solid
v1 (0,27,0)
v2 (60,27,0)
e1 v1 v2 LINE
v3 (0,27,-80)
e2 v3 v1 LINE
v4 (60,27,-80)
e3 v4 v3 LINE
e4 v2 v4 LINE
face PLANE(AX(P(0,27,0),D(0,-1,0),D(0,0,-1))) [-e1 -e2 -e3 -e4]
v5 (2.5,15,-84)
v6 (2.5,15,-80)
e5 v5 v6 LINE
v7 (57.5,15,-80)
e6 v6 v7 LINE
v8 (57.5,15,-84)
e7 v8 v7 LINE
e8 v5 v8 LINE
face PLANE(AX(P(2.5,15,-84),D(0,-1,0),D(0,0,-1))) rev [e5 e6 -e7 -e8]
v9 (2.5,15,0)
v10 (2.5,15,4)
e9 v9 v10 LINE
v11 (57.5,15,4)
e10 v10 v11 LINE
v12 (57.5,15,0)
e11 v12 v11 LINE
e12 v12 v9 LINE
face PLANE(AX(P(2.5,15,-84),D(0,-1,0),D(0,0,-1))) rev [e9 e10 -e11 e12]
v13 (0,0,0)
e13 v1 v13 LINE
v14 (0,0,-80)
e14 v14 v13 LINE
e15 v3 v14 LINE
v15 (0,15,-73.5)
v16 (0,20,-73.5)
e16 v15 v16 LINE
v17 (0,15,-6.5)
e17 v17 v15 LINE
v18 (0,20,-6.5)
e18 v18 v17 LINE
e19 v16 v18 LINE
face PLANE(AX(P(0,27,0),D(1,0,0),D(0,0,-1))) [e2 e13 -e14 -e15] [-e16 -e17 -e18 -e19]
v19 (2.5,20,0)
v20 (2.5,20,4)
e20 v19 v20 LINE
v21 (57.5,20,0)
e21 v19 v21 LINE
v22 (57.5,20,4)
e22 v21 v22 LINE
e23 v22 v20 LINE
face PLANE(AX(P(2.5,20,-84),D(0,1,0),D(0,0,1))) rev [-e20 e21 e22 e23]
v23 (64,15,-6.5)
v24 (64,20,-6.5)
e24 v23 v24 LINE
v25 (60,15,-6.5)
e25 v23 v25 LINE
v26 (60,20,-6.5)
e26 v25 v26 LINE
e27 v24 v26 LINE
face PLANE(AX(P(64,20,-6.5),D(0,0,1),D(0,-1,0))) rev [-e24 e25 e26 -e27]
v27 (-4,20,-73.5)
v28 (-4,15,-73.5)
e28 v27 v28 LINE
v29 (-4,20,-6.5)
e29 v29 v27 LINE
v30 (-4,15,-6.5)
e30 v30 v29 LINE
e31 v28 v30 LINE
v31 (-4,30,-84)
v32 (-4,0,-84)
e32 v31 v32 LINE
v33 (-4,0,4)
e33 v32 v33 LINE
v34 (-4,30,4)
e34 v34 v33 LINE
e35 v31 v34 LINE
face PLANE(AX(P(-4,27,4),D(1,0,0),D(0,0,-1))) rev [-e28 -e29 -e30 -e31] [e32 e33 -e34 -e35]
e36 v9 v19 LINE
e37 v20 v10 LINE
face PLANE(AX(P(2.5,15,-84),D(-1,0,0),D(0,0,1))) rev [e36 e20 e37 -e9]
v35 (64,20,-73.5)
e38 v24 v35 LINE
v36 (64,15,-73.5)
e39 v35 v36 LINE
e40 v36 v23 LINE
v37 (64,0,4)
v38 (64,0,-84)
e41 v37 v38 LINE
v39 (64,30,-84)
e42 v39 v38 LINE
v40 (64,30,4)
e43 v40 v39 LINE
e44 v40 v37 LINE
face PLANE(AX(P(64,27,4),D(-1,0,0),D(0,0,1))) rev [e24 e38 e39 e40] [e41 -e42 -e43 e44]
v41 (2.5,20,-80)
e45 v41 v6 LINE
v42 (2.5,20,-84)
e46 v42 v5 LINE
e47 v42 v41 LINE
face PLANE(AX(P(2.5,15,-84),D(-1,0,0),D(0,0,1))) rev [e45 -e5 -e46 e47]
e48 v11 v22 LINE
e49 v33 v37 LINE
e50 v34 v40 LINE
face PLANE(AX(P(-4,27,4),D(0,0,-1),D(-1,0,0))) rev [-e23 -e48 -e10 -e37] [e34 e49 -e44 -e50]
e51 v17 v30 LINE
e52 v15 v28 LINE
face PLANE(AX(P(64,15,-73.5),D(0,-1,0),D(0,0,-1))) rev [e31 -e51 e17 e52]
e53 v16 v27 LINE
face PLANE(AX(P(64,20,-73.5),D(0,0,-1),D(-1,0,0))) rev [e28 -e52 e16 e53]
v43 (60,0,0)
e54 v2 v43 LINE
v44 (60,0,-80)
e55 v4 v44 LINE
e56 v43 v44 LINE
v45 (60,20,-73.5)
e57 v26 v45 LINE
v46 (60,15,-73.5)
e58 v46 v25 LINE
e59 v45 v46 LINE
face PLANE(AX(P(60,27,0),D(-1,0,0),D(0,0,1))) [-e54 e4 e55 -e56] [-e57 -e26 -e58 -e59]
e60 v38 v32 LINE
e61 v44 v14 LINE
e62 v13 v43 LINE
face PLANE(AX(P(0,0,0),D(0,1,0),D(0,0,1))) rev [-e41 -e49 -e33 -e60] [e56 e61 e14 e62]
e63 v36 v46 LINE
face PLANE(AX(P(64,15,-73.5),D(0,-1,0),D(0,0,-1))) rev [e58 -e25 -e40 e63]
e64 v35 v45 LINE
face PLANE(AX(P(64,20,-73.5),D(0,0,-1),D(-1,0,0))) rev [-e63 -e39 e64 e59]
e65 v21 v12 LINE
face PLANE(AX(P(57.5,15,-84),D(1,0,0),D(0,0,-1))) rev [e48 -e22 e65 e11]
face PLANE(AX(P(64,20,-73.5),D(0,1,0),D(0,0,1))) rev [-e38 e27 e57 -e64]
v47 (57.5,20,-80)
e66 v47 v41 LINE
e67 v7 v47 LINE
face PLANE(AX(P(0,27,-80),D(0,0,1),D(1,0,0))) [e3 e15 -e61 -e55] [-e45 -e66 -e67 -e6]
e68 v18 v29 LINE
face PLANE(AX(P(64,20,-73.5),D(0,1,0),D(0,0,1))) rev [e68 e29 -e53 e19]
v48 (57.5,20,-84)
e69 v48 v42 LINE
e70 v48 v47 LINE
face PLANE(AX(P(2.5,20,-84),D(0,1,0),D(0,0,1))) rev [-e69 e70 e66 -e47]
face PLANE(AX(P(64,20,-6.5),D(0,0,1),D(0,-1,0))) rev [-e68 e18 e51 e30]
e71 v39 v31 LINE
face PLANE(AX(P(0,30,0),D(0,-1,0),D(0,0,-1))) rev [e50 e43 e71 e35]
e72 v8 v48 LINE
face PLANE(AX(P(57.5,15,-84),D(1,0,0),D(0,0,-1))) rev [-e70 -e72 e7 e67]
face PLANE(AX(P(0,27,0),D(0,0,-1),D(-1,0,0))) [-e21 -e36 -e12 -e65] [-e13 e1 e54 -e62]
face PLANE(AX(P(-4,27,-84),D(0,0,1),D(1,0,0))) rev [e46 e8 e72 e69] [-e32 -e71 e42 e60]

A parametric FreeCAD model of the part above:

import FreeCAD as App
import Part
import Sketcher

V = App.Vector
Q = App.Units.Quantity

doc = App.newDocument("Part")
body = doc.addObject("PartDesign::Body", "Body")

# Sketch on XZ plane
sketch1 = body.newObject("Sketcher::SketchObject", "Sketch")
sketch1.AttachmentSupport = (doc.getObject("XZ_Plane"), [""])
sketch1.MapMode = "FlatFace"
sketch1.addGeometry(Part.LineSegment(V(-4, -84, 0), V(-4, 4, 0)), False)
sketch1.addGeometry(Part.LineSegment(V(-4, 4, 0), V(64, 4, 0)), False)
sketch1.addGeometry(Part.LineSegment(V(64, 4, 0), V(64, -84, 0)), False)
sketch1.addGeometry(Part.LineSegment(V(64, -84, 0), V(-4, -84, 0)), False)
sketch1.addGeometry(Part.LineSegment(V(60, 0, 0), V(0, 0, 0)), False)
sketch1.addGeometry(Part.LineSegment(V(0, 0, 0), V(0, -80, 0)), False)
sketch1.addGeometry(Part.LineSegment(V(0, -80, 0), V(60, -80, 0)), False)
sketch1.addGeometry(Part.LineSegment(V(60, -80, 0), V(60, 0, 0)), False)
sketch1.addConstraint(Sketcher.Constraint("Coincident", 0, 2, 1, 1))
sketch1.addConstraint(Sketcher.Constraint("Coincident", 1, 2, 2, 1))
sketch1.addConstraint(Sketcher.Constraint("Coincident", 2, 2, 3, 1))
sketch1.addConstraint(Sketcher.Constraint("Coincident", 3, 2, 0, 1))
sketch1.addConstraint(Sketcher.Constraint("Coincident", 4, 2, 5, 1))
sketch1.addConstraint(Sketcher.Constraint("Coincident", 5, 2, 6, 1))
sketch1.addConstraint(Sketcher.Constraint("Coincident", 6, 2, 7, 1))
sketch1.addConstraint(Sketcher.Constraint("Coincident", 7, 2, 4, 1))
sketch1.addConstraint(Sketcher.Constraint("Vertical", 0))
sketch1.addConstraint(Sketcher.Constraint("Horizontal", 1))
sketch1.addConstraint(Sketcher.Constraint("Vertical", 2))
sketch1.addConstraint(Sketcher.Constraint("Horizontal", 3))
sketch1.addConstraint(Sketcher.Constraint("Horizontal", 4))
sketch1.addConstraint(Sketcher.Constraint("Vertical", 5))
sketch1.addConstraint(Sketcher.Constraint("Horizontal", 6))
sketch1.addConstraint(Sketcher.Constraint("Vertical", 7))
sketch1.addConstraint(Sketcher.Constraint("Coincident", 4, 2, -1, 1))
sketch1.addConstraint(Sketcher.Constraint("DistanceX", 1, 1, 1, 2, Q("68 mm")))
sketch1.addConstraint(Sketcher.Constraint("DistanceX", 4, 2, 4, 1, Q("60 mm")))
sketch1.addConstraint(Sketcher.Constraint("DistanceY", 0, 1, 0, 2, Q("88 mm")))
sketch1.addConstraint(Sketcher.Constraint("DistanceY", 5, 2, 5, 1, Q("80 mm")))
sketch1.addConstraint(Sketcher.Constraint("DistanceX", 0, 2, -1, 1, Q("4 mm")))
sketch1.addConstraint(Sketcher.Constraint("DistanceY", -1, 1, 0, 2, Q("4 mm")))
pad1 = body.newObject("PartDesign::Pad", "Pad")
pad1.Profile = sketch1
pad1.Length = 27
pad1.Reversed = True

# Sketch on XZ plane
sketch2 = body.newObject("Sketcher::SketchObject", "Sketch001")
sketch2.AttachmentSupport = (doc.getObject("XZ_Plane"), [""])
sketch2.MapMode = "FlatFace"
sketch2.AttachmentOffset = App.Placement(V(0, 0, -27), App.Rotation())
sketch2.addGeometry(Part.LineSegment(V(-4, -84, 0), V(-4, 4, 0)), False)
sketch2.addGeometry(Part.LineSegment(V(-4, 4, 0), V(64, 4, 0)), False)
sketch2.addGeometry(Part.LineSegment(V(64, 4, 0), V(64, -84, 0)), False)
sketch2.addGeometry(Part.LineSegment(V(64, -84, 0), V(-4, -84, 0)), False)
sketch2.addConstraint(Sketcher.Constraint("Coincident", 0, 2, 1, 1))
sketch2.addConstraint(Sketcher.Constraint("Coincident", 1, 2, 2, 1))
sketch2.addConstraint(Sketcher.Constraint("Coincident", 2, 2, 3, 1))
sketch2.addConstraint(Sketcher.Constraint("Coincident", 3, 2, 0, 1))
sketch2.addConstraint(Sketcher.Constraint("Vertical", 0))
sketch2.addConstraint(Sketcher.Constraint("Horizontal", 1))
sketch2.addConstraint(Sketcher.Constraint("Vertical", 2))
sketch2.addConstraint(Sketcher.Constraint("Horizontal", 3))
sketch2.addConstraint(Sketcher.Constraint("DistanceX", 1, 1, 1, 2, Q("68 mm")))
sketch2.addConstraint(Sketcher.Constraint("DistanceY", 0, 1, 0, 2, Q("88 mm")))
sketch2.addConstraint(Sketcher.Constraint("DistanceX", 0, 2, -1, 1, Q("4 mm")))
sketch2.addConstraint(Sketcher.Constraint("DistanceY", -1, 1, 0, 2, Q("4 mm")))
pad2 = body.newObject("PartDesign::Pad", "Pad001")
pad2.Profile = sketch2
pad2.Length = 3
pad2.Reversed = True

# Sketch on YZ plane
sketch3 = body.newObject("Sketcher::SketchObject", "Sketch002")
sketch3.AttachmentSupport = (doc.getObject("YZ_Plane"), [""])
sketch3.MapMode = "FlatFace"
sketch3.AttachmentOffset = App.Placement(V(0, 0, -4), App.Rotation())
sketch3.addGeometry(Part.LineSegment(V(20, -74, 0), V(15, -74, 0)), False)
sketch3.addGeometry(Part.LineSegment(V(15, -74, 0), V(15, -6, 0)), False)
sketch3.addGeometry(Part.LineSegment(V(15, -6, 0), V(20, -6, 0)), False)
sketch3.addGeometry(Part.LineSegment(V(20, -6, 0), V(20, -74, 0)), False)
sketch3.addConstraint(Sketcher.Constraint("Coincident", 0, 2, 1, 1))
sketch3.addConstraint(Sketcher.Constraint("Coincident", 1, 2, 2, 1))
sketch3.addConstraint(Sketcher.Constraint("Coincident", 2, 2, 3, 1))
sketch3.addConstraint(Sketcher.Constraint("Coincident", 3, 2, 0, 1))
sketch3.addConstraint(Sketcher.Constraint("Horizontal", 0))
sketch3.addConstraint(Sketcher.Constraint("Vertical", 1))
sketch3.addConstraint(Sketcher.Constraint("Horizontal", 2))
sketch3.addConstraint(Sketcher.Constraint("Vertical", 3))
sketch3.addConstraint(Sketcher.Constraint("DistanceX", 0, 2, 0, 1, Q("5 mm")))
sketch3.addConstraint(Sketcher.Constraint("DistanceY", 1, 1, 1, 2, Q("67 mm")))
sketch3.addConstraint(Sketcher.Constraint("DistanceX", -1, 1, 0, 2, Q("15 mm")))
sketch3.addConstraint(Sketcher.Constraint("DistanceY", 0, 2, -1, 1, Q("73.5 mm")))
pocket1 = body.newObject("PartDesign::Pocket", "Pocket")
pocket1.Profile = sketch3
pocket1.Type = "ThroughAll"
pocket1.Reversed = True

# Sketch on XY plane
sketch4 = body.newObject("Sketcher::SketchObject", "Sketch003")
sketch4.AttachmentSupport = (doc.getObject("XY_Plane"), [""])
sketch4.MapMode = "FlatFace"
sketch4.AttachmentOffset = App.Placement(V(0, 0, 4), App.Rotation())
sketch4.addGeometry(Part.LineSegment(V(2, 20, 0), V(2, 15, 0)), False)
sketch4.addGeometry(Part.LineSegment(V(2, 15, 0), V(58, 15, 0)), False)
sketch4.addGeometry(Part.LineSegment(V(58, 15, 0), V(58, 20, 0)), False)
sketch4.addGeometry(Part.LineSegment(V(58, 20, 0), V(2, 20, 0)), False)
sketch4.addConstraint(Sketcher.Constraint("Coincident", 0, 2, 1, 1))
sketch4.addConstraint(Sketcher.Constraint("Coincident", 1, 2, 2, 1))
sketch4.addConstraint(Sketcher.Constraint("Coincident", 2, 2, 3, 1))
sketch4.addConstraint(Sketcher.Constraint("Coincident", 3, 2, 0, 1))
sketch4.addConstraint(Sketcher.Constraint("Vertical", 0))
sketch4.addConstraint(Sketcher.Constraint("Horizontal", 1))
sketch4.addConstraint(Sketcher.Constraint("Vertical", 2))
sketch4.addConstraint(Sketcher.Constraint("Horizontal", 3))
sketch4.addConstraint(Sketcher.Constraint("DistanceX", 1, 1, 1, 2, Q("55 mm")))
sketch4.addConstraint(Sketcher.Constraint("DistanceY", 0, 2, 0, 1, Q("5 mm")))
sketch4.addConstraint(Sketcher.Constraint("DistanceY", -1, 1, 0, 2, Q("15 mm")))
sketch4.addConstraint(Sketcher.Constraint("DistanceX", -1, 1, 0, 2, Q("2.5 mm")))
pocket2 = body.newObject("PartDesign::Pocket", "Pocket001")
pocket2.Profile = sketch4
pocket2.Type = "ThroughAll"

doc.recompute()
